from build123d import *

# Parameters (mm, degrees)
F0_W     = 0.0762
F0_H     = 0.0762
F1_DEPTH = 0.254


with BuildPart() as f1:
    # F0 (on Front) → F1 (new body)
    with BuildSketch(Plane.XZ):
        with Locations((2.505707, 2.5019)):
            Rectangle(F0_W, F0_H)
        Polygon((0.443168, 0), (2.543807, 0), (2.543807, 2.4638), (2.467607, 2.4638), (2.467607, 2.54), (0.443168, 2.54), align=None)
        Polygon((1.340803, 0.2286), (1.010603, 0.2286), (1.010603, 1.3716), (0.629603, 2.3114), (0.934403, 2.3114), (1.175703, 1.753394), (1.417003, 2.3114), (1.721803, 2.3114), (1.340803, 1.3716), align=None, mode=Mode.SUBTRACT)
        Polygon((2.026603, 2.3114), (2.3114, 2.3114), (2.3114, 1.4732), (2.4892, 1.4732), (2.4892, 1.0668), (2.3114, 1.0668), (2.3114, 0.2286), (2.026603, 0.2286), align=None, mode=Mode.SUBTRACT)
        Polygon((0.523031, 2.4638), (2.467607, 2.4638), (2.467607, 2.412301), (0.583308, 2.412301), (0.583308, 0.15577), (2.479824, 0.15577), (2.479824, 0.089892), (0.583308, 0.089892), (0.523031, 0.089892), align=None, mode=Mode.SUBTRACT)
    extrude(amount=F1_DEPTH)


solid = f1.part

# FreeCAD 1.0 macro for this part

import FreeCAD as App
import Part
import Sketcher

V = App.Vector
Q = App.Units.Quantity

doc = App.newDocument("Part")
body = doc.addObject("PartDesign::Body", "Body")

sketch1 = doc.addObject("Sketcher::SketchObject", "Sketch")
body.addObject(sketch1)
sketch1.AttachmentSupport = (doc.XZ_Plane, [""])
sketch1.MapMode = "FlatFace"
sketch1.addGeometry(Part.LineSegment(V(2.54, 2.54, 0), V(0.44, 2.54, 0)), False)
sketch1.addGeometry(Part.LineSegment(V(0.44, 2.54, 0), V(0.44, 0, 0)), False)
sketch1.addGeometry(Part.LineSegment(V(0.44, 0, 0), V(2.54, 0, 0)), False)
sketch1.addGeometry(Part.LineSegment(V(2.54, 0, 0), V(2.54, 2.54, 0)), False)
sketch1.addGeometry(Part.LineSegment(V(1.34, 1.37, 0), V(1.34, 0.23, 0)), False)
sketch1.addGeometry(Part.LineSegment(V(1.34, 0.23, 0), V(1.01, 0.23, 0)), False)
sketch1.addGeometry(Part.LineSegment(V(1.01, 0.23, 0), V(1.01, 1.37, 0)), False)
sketch1.addGeometry(Part.LineSegment(V(1.01, 1.37, 0), V(0.63, 2.31, 0)), False)
sketch1.addGeometry(Part.LineSegment(V(0.63, 2.31, 0), V(0.93, 2.31, 0)), False)
sketch1.addGeometry(Part.LineSegment(V(0.93, 2.31, 0), V(1.18, 1.75, 0)), False)
sketch1.addGeometry(Part.LineSegment(V(1.18, 1.75, 0), V(1.42, 2.31, 0)), False)
sketch1.addGeometry(Part.LineSegment(V(1.42, 2.31, 0), V(1.72, 2.31, 0)), False)
sketch1.addGeometry(Part.LineSegment(V(1.72, 2.31, 0), V(1.34, 1.37, 0)), False)
sketch1.addGeometry(Part.LineSegment(V(2.03, 0.23, 0), V(2.03, 2.31, 0)), False)
sketch1.addGeometry(Part.LineSegment(V(2.03, 2.31, 0), V(2.31, 2.31, 0)), False)
sketch1.addGeometry(Part.LineSegment(V(2.31, 2.31, 0), V(2.31, 1.47, 0)), False)
sketch1.addGeometry(Part.LineSegment(V(2.31, 1.47, 0), V(2.49, 1.47, 0)), False)
sketch1.addGeometry(Part.LineSegment(V(2.49, 1.47, 0), V(2.49, 1.07, 0)), False)
sketch1.addGeometry(Part.LineSegment(V(2.49, 1.07, 0), V(2.31, 1.07, 0)), False)
sketch1.addGeometry(Part.LineSegment(V(2.31, 1.07, 0), V(2.31, 0.23, 0)), False)
sketch1.addGeometry(Part.LineSegment(V(2.31, 0.23, 0), V(2.03, 0.23, 0)), False)
sketch1.addGeometry(Part.LineSegment(V(0.52, 0.09, 0), V(0.52, 2.46, 0)), False)
sketch1.addGeometry(Part.LineSegment(V(0.52, 2.46, 0), V(2.47, 2.46, 0)), False)
sketch1.addGeometry(Part.LineSegment(V(2.47, 2.46, 0), V(2.47, 2.41, 0)), False)
sketch1.addGeometry(Part.LineSegment(V(2.47, 2.41, 0), V(0.58, 2.41, 0)), False)
sketch1.addGeometry(Part.LineSegment(V(0.58, 2.41, 0), V(0.58, 0.16, 0)), False)
sketch1.addGeometry(Part.LineSegment(V(0.58, 0.16, 0), V(2.48, 0.16, 0)), False)
sketch1.addGeometry(Part.LineSegment(V(2.48, 0.16, 0), V(2.48, 0.09, 0)), False)
sketch1.addGeometry(Part.LineSegment(V(2.48, 0.09, 0), V(0.52, 0.09, 0)), False)
sketch1.addConstraint(Sketcher.Constraint("Coincident", 0, 2, 1, 1))
sketch1.addConstraint(Sketcher.Constraint("Coincident", 1, 2, 2, 1))
sketch1.addConstraint(Sketcher.Constraint("Coincident", 2, 2, 3, 1))
sketch1.addConstraint(Sketcher.Constraint("Coincident", 3, 2, 0, 1))
sketch1.addConstraint(Sketcher.Constraint("Coincident", 4, 2, 5, 1))
sketch1.addConstraint(Sketcher.Constraint("Coincident", 5, 2, 6, 1))
sketch1.addConstraint(Sketcher.Constraint("Coincident", 6, 2, 7, 1))
sketch1.addConstraint(Sketcher.Constraint("Coincident", 7, 2, 8, 1))
sketch1.addConstraint(Sketcher.Constraint("Coincident", 8, 2, 9, 1))
sketch1.addConstraint(Sketcher.Constraint("Coincident", 9, 2, 10, 1))
sketch1.addConstraint(Sketcher.Constraint("Coincident", 10, 2, 11, 1))
sketch1.addConstraint(Sketcher.Constraint("Coincident", 11, 2, 12, 1))
sketch1.addConstraint(Sketcher.Constraint("Coincident", 12, 2, 4, 1))
sketch1.addConstraint(Sketcher.Constraint("Coincident", 13, 2, 14, 1))
sketch1.addConstraint(Sketcher.Constraint("Coincident", 14, 2, 15, 1))
sketch1.addConstraint(Sketcher.Constraint("Coincident", 15, 2, 16, 1))
sketch1.addConstraint(Sketcher.Constraint("Coincident", 16, 2, 17, 1))
sketch1.addConstraint(Sketcher.Constraint("Coincident", 17, 2, 18, 1))
sketch1.addConstraint(Sketcher.Constraint("Coincident", 18, 2, 19, 1))
sketch1.addConstraint(Sketcher.Constraint("Coincident", 19, 2, 20, 1))
sketch1.addConstraint(Sketcher.Constraint("Coincident", 20, 2, 13, 1))
sketch1.addConstraint(Sketcher.Constraint("Coincident", 21, 2, 22, 1))
sketch1.addConstraint(Sketcher.Constraint("Coincident", 22, 2, 23, 1))
sketch1.addConstraint(Sketcher.Constraint("Coincident", 23, 2, 24, 1))
sketch1.addConstraint(Sketcher.Constraint("Coincident", 24, 2, 25, 1))
sketch1.addConstraint(Sketcher.Constraint("Coincident", 25, 2, 26, 1))
sketch1.addConstraint(Sketcher.Constraint("Coincident", 26, 2, 27, 1))
sketch1.addConstraint(Sketcher.Constraint("Coincident", 27, 2, 28, 1))
sketch1.addConstraint(Sketcher.Constraint("Coincident", 28, 2, 21, 1))
sketch1.addConstraint(Sketcher.Constraint("Horizontal", 0))
sketch1.addConstraint(Sketcher.Constraint("Vertical", 1))
sketch1.addConstraint(Sketcher.Constraint("Horizontal", 2))
sketch1.addConstraint(Sketcher.Constraint("Vertical", 3))
sketch1.addConstraint(Sketcher.Constraint("Vertical", 4))
sketch1.addConstraint(Sketcher.Constraint("Horizontal", 5))
sketch1.addConstraint(Sketcher.Constraint("Vertical", 6))
sketch1.addConstraint(Sketcher.Constraint("Horizontal", 8))
sketch1.addConstraint(Sketcher.Constraint("Horizontal", 11))
sketch1.addConstraint(Sketcher.Constraint("Vertical", 13))
sketch1.addConstraint(Sketcher.Constraint("Horizontal", 14))
sketch1.addConstraint(Sketcher.Constraint("Vertical", 15))
sketch1.addConstraint(Sketcher.Constraint("Horizontal", 16))
sketch1.addConstraint(Sketcher.Constraint("Vertical", 17))
sketch1.addConstraint(Sketcher.Constraint("Horizontal", 18))
sketch1.addConstraint(Sketcher.Constraint("Vertical", 19))
sketch1.addConstraint(Sketcher.Constraint("Horizontal", 20))
sketch1.addConstraint(Sketcher.Constraint("Vertical", 21))
sketch1.addConstraint(Sketcher.Constraint("Horizontal", 22))
sketch1.addConstraint(Sketcher.Constraint("Vertical", 23))
sketch1.addConstraint(Sketcher.Constraint("Horizontal", 24))
sketch1.addConstraint(Sketcher.Constraint("Vertical", 25))
sketch1.addConstraint(Sketcher.Constraint("Horizontal", 26))
sketch1.addConstraint(Sketcher.Constraint("Vertical", 27))
sketch1.addConstraint(Sketcher.Constraint("Horizontal", 28))
sketch1.addConstraint(Sketcher.Constraint("PointOnObject", 1, 2, -1))
sketch1.addConstraint(Sketcher.Constraint("Horizontal", 8, 2, 10, 2))
sketch1.addConstraint(Sketcher.Constraint("Horizontal", 6, 2, 12, 2))
sketch1.addConstraint(Sketcher.Constraint("Horizontal", 11, 2, 13, 2))
sketch1.addConstraint(Sketcher.Constraint("Horizontal", 5, 2, 19, 2))
sketch1.addConstraint(Sketcher.Constraint("Vertical", 15, 2, 18, 2))
sketch1.addConstraint(Sketcher.Constraint("Equal", 8, 11))
sketch1.addConstraint(Sketcher.Constraint("Equal", 15, 19))
sketch1.addConstraint(Sketcher.Constraint("Equal", 9, 10))
sketch1.addConstraint(Sketcher.Constraint("Equal", 7, 12))
sketch1.addConstraint(Sketcher.Constraint("DistanceY", 1, 2, 1, 1, Q("0.1 in")))
sketch1.addConstraint(Sketcher.Constraint("DistanceX", 5, 2, 5, 1, Q("0.013 in")))
sketch1.addConstraint(Sketcher.Constraint("DistanceX", 8, 1, 8, 2, Q("0.012 in")))
sketch1.addConstraint(Sketcher.Constraint("DistanceX", 16, 1, 16, 2, Q("0.007 in")))
sketch1.addConstraint(Sketcher.Constraint("DistanceY", 4, 2, 4, 1, Q("0.045 in")))
sketch1.addConstraint(Sketcher.Constraint("DistanceY", 13, 1, 13, 2, Q("0.082 in")))
sketch1.addConstraint(Sketcher.Constraint("DistanceY", 15, 2, 15, 1, Q("0.033 in")))
sketch1.addConstraint(Sketcher.Constraint("DistanceY", -1, 1, 4, 2, Q("0.009 in")))
sketch1.addConstraint(Sketcher.Constraint("DistanceX", -1, 1, 14, 2, Q("0.091 in")))
sketch1.addConstraint(Sketcher.Constraint("DistanceY", -1, 1, 21, 2, Q("0.097 in")))
sketch1.addConstraint(Sketcher.Constraint("DistanceX", 7, 2, 6, 2, Q("0.015 in")))
sketch1.addConstraint(Sketcher.Constraint("DistanceX", 11, 2, 13, 2, Q("0.012 in")))
sketch1.addConstraint(Sketcher.Constraint("DistanceX", 22, 2, 3, 2, Q("0.003 in")))
sketch1.addConstraint(Sketcher.Constraint("DistanceX", 24, 2, 24, 1, 1.884299))
sketch1.addConstraint(Sketcher.Constraint("DistanceY", 23, 2, 23, 1, 0.051499))
sketch1.addConstraint(Sketcher.Constraint("DistanceX", 0, 2, 0, 1, 2.100639))
sketch1.addConstraint(Sketcher.Constraint("DistanceY", 21, 1, 21, 2, 2.373908))
sketch1.addConstraint(Sketcher.Constraint("DistanceY", 25, 2, 25, 1, 2.256531))
sketch1.addConstraint(Sketcher.Constraint("DistanceX", 14, 1, 14, 2, 0.284797))
sketch1.addConstraint(Sketcher.Constraint("DistanceX", 22, 1, 22, 2, 1.944576))
sketch1.addConstraint(Sketcher.Constraint("DistanceX", 26, 1, 26, 2, 1.896516))
sketch1.addConstraint(Sketcher.Constraint("DistanceX", -1, 1, 21, 2, 0.523031))
sketch1.addConstraint(Sketcher.Constraint("Distance", 9, 0.607944))
pad1 = doc.addObject("PartDesign::Pad", "Pad")
body.addObject(pad1)
pad1.Profile = sketch1
pad1.Length = Q("0.01 in")

doc.recompute()
